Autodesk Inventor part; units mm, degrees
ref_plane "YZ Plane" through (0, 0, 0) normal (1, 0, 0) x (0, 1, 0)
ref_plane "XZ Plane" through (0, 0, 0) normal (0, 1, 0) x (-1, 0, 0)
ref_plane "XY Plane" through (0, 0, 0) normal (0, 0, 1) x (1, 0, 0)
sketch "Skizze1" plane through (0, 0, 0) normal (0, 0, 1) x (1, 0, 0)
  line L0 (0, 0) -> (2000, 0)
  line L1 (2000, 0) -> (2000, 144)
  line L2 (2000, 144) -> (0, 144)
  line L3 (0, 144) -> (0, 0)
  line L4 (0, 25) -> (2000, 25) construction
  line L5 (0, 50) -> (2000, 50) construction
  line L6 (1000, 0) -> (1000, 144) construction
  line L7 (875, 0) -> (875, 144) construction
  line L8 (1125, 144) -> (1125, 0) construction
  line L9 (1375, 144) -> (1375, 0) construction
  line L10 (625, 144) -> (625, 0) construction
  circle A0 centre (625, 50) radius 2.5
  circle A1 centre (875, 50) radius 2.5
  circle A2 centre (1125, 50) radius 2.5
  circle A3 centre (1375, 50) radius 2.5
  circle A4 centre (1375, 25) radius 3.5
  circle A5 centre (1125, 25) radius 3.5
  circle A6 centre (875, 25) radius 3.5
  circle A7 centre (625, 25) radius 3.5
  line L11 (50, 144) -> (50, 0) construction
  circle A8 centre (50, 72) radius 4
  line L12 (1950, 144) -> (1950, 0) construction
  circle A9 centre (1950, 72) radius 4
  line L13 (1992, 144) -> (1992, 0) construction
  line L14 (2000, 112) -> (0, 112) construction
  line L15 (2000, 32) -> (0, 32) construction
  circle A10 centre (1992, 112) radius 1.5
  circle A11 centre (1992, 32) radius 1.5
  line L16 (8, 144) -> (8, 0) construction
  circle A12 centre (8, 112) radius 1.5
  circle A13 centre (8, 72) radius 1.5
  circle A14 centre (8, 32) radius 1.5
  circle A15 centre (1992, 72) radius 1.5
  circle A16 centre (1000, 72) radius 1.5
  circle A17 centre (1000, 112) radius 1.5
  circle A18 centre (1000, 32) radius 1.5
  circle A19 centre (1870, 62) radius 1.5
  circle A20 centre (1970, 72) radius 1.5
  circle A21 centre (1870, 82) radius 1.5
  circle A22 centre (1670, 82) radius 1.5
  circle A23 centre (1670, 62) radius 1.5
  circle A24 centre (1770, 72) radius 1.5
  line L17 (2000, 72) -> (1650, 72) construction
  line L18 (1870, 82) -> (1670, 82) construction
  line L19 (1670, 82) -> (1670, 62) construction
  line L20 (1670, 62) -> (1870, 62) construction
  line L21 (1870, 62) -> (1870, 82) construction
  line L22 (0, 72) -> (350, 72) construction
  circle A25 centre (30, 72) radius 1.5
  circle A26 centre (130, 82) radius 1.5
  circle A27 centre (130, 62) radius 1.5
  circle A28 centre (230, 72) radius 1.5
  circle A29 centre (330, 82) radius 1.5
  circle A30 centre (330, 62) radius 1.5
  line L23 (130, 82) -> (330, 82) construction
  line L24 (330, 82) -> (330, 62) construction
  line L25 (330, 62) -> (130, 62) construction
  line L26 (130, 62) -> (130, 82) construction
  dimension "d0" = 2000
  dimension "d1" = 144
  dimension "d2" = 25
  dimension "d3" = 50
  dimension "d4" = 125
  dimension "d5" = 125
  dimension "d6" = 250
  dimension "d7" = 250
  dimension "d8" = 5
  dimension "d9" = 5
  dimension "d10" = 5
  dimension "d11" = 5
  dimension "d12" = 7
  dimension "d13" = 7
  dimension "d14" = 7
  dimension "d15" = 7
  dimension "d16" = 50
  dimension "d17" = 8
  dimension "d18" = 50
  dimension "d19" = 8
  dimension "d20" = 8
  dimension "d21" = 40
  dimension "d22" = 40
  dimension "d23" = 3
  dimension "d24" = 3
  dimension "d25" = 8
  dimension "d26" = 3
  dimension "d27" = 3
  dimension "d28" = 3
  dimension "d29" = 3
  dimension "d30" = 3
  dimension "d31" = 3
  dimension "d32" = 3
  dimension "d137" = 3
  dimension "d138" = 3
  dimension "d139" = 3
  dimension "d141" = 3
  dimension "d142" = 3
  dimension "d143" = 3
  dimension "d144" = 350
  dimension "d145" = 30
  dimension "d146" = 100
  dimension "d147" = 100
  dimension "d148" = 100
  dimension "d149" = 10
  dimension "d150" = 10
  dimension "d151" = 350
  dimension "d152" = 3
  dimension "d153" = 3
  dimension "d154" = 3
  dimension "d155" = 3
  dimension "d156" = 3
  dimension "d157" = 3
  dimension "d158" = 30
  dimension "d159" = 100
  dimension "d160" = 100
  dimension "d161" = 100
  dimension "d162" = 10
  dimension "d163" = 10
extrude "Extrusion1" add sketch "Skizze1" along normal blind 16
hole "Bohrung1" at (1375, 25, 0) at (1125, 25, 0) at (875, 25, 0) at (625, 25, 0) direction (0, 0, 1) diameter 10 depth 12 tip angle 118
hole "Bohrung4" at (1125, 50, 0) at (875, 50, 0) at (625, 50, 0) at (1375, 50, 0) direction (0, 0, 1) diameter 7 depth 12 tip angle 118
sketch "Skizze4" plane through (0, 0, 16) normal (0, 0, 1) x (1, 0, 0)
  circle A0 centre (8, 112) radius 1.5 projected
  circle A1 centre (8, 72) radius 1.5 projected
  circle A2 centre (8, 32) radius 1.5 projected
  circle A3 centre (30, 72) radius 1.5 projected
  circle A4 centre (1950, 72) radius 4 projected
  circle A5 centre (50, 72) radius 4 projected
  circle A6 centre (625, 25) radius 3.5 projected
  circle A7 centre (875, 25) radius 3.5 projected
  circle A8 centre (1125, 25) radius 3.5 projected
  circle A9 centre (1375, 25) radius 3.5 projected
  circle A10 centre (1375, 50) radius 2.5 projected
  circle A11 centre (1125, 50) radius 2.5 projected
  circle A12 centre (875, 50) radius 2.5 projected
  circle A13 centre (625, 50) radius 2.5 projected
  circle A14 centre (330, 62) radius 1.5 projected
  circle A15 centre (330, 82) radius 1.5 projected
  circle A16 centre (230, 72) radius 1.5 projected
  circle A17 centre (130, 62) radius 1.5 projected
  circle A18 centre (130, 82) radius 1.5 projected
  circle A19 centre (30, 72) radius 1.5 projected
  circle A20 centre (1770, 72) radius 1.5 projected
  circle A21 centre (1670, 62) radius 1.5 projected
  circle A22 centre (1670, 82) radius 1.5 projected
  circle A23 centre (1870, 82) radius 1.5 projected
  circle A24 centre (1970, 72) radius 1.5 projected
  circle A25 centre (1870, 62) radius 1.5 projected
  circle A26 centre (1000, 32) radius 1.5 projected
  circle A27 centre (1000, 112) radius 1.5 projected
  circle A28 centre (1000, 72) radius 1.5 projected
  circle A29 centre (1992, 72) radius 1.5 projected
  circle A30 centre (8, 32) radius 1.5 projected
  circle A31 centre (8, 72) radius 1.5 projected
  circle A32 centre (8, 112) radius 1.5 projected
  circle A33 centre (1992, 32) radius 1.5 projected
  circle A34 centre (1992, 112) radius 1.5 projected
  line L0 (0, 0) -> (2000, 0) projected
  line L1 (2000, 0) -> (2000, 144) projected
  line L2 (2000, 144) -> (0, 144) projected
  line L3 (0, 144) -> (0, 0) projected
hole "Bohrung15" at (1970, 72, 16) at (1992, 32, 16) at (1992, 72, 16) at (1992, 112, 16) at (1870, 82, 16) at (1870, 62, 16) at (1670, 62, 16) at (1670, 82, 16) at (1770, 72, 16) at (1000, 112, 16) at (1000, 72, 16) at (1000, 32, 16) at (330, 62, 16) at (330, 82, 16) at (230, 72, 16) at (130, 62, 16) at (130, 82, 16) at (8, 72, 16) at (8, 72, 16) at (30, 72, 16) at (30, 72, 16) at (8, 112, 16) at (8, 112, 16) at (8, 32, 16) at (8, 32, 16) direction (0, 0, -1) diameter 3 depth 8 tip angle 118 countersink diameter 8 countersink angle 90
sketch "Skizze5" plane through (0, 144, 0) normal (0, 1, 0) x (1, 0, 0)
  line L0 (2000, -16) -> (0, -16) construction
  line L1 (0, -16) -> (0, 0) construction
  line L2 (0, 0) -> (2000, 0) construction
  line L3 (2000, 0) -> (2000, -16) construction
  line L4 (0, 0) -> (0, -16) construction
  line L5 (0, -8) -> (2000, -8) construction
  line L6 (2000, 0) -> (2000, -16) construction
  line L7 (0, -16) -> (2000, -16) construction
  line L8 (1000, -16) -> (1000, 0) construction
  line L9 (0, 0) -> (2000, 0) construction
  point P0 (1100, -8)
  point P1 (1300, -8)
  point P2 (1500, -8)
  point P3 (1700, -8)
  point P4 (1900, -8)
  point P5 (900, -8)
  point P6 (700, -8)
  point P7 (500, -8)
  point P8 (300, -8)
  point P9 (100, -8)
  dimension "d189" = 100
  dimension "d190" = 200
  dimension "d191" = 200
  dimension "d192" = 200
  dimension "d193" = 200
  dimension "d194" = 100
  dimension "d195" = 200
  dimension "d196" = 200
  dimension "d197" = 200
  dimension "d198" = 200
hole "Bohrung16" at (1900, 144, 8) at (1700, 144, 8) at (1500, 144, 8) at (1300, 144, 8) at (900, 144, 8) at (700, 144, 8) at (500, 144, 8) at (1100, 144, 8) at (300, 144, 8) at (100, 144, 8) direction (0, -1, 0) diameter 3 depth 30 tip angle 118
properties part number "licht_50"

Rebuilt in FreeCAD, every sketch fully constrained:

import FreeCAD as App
import Part
import Sketcher
Q = App.Units.Quantity

doc = App.newDocument("Part")
body = doc.addObject("PartDesign::Body", "Body")

sketch1 = body.newObject("Sketcher::SketchObject", "Sketch")
sketch1.AttachmentSupport = (doc.getObject("XY_Plane"), [""])
sketch1.MapMode = "FlatFace"
sketch1.addGeometry(Part.LineSegment(App.Vector(0, 144, 0), App.Vector(0, 0, 0)), False)
sketch1.addGeometry(Part.LineSegment(App.Vector(0, 0, 0), App.Vector(2000, 0, 0)), False)
sketch1.addGeometry(Part.LineSegment(App.Vector(2000, 0, 0), App.Vector(2000, 144, 0)), False)
sketch1.addGeometry(Part.LineSegment(App.Vector(2000, 144, 0), App.Vector(0, 144, 0)), False)
sketch1.addGeometry(Part.Circle(App.Vector(8, 32, 0), App.Vector(0, 0, 1), 1.5), False)
sketch1.addGeometry(Part.Circle(App.Vector(625, 25, 0), App.Vector(0, 0, 1), 3.5), False)
sketch1.addGeometry(Part.Circle(App.Vector(875, 25, 0), App.Vector(0, 0, 1), 3.5), False)
sketch1.addGeometry(Part.Circle(App.Vector(130, 62, 0), App.Vector(0, 0, 1), 1.5), False)
sketch1.addGeometry(Part.Circle(App.Vector(330, 62, 0), App.Vector(0, 0, 1), 1.5), False)
sketch1.addGeometry(Part.Circle(App.Vector(625, 50, 0), App.Vector(0, 0, 1), 2.5), False)
sketch1.addGeometry(Part.Circle(App.Vector(875, 50, 0), App.Vector(0, 0, 1), 2.5), False)
sketch1.addGeometry(Part.Circle(App.Vector(1125, 25, 0), App.Vector(0, 0, 1), 3.5), False)
sketch1.addGeometry(Part.Circle(App.Vector(1000, 32, 0), App.Vector(0, 0, 1), 1.5), False)
sketch1.addGeometry(Part.Circle(App.Vector(1375, 25, 0), App.Vector(0, 0, 1), 3.5), False)
sketch1.addGeometry(Part.Circle(App.Vector(1992, 32, 0), App.Vector(0, 0, 1), 1.5), False)
sketch1.addGeometry(Part.Circle(App.Vector(1125, 50, 0), App.Vector(0, 0, 1), 2.5), False)
sketch1.addGeometry(Part.Circle(App.Vector(1375, 50, 0), App.Vector(0, 0, 1), 2.5), False)
sketch1.addGeometry(Part.Circle(App.Vector(1670, 62, 0), App.Vector(0, 0, 1), 1.5), False)
sketch1.addGeometry(Part.Circle(App.Vector(1870, 62, 0), App.Vector(0, 0, 1), 1.5), False)
sketch1.addGeometry(Part.Circle(App.Vector(8, 72, 0), App.Vector(0, 0, 1), 1.5), False)
sketch1.addGeometry(Part.Circle(App.Vector(30, 72, 0), App.Vector(0, 0, 1), 1.5), False)
sketch1.addGeometry(Part.Circle(App.Vector(50, 72, 0), App.Vector(0, 0, 1), 4), False)
sketch1.addGeometry(Part.Circle(App.Vector(230, 72, 0), App.Vector(0, 0, 1), 1.5), False)
sketch1.addGeometry(Part.Circle(App.Vector(130, 82, 0), App.Vector(0, 0, 1), 1.5), False)
sketch1.addGeometry(Part.Circle(App.Vector(330, 82, 0), App.Vector(0, 0, 1), 1.5), False)
sketch1.addGeometry(Part.Circle(App.Vector(8, 112, 0), App.Vector(0, 0, 1), 1.5), False)
sketch1.addGeometry(Part.Circle(App.Vector(1000, 72, 0), App.Vector(0, 0, 1), 1.5), False)
sketch1.addGeometry(Part.Circle(App.Vector(1670, 82, 0), App.Vector(0, 0, 1), 1.5), False)
sketch1.addGeometry(Part.Circle(App.Vector(1770, 72, 0), App.Vector(0, 0, 1), 1.5), False)
sketch1.addGeometry(Part.Circle(App.Vector(1950, 72, 0), App.Vector(0, 0, 1), 4), False)
sketch1.addGeometry(Part.Circle(App.Vector(1970, 72, 0), App.Vector(0, 0, 1), 1.5), False)
sketch1.addGeometry(Part.Circle(App.Vector(1992, 72, 0), App.Vector(0, 0, 1), 1.5), False)
sketch1.addGeometry(Part.Circle(App.Vector(1870, 82, 0), App.Vector(0, 0, 1), 1.5), False)
sketch1.addGeometry(Part.Circle(App.Vector(1000, 112, 0), App.Vector(0, 0, 1), 1.5), False)
sketch1.addGeometry(Part.Circle(App.Vector(1992, 112, 0), App.Vector(0, 0, 1), 1.5), False)
sketch1.addConstraint(Sketcher.Constraint("Coincident", 0, 2, 1, 1))
sketch1.addConstraint(Sketcher.Constraint("Coincident", 1, 2, 2, 1))
sketch1.addConstraint(Sketcher.Constraint("Coincident", 2, 2, 3, 1))
sketch1.addConstraint(Sketcher.Constraint("Coincident", 3, 2, 0, 1))
sketch1.addConstraint(Sketcher.Constraint("Vertical", 0))
sketch1.addConstraint(Sketcher.Constraint("Horizontal", 1))
sketch1.addConstraint(Sketcher.Constraint("Vertical", 2))
sketch1.addConstraint(Sketcher.Constraint("Horizontal", 3))
sketch1.addConstraint(Sketcher.Constraint("Coincident", 0, 2, -1, 1))
sketch1.addConstraint(Sketcher.Constraint("Equal", 5, 6))
sketch1.addConstraint(Sketcher.Constraint("Equal", 4, 7))
sketch1.addConstraint(Sketcher.Constraint("Equal", 7, 8))
sketch1.addConstraint(Sketcher.Constraint("Equal", 9, 10))
sketch1.addConstraint(Sketcher.Constraint("Equal", 6, 11))
sketch1.addConstraint(Sketcher.Constraint("Equal", 8, 12))
sketch1.addConstraint(Sketcher.Constraint("Equal", 11, 13))
sketch1.addConstraint(Sketcher.Constraint("Equal", 12, 14))
sketch1.addConstraint(Sketcher.Constraint("Equal", 10, 15))
sketch1.addConstraint(Sketcher.Constraint("Equal", 15, 16))
sketch1.addConstraint(Sketcher.Constraint("Equal", 14, 17))
sketch1.addConstraint(Sketcher.Constraint("Equal", 17, 18))
sketch1.addConstraint(Sketcher.Constraint("Equal", 18, 19))
sketch1.addConstraint(Sketcher.Constraint("Equal", 19, 20))
sketch1.addConstraint(Sketcher.Constraint("Equal", 20, 22))
sketch1.addConstraint(Sketcher.Constraint("Equal", 22, 23))
sketch1.addConstraint(Sketcher.Constraint("Equal", 23, 24))
sketch1.addConstraint(Sketcher.Constraint("Equal", 24, 25))
sketch1.addConstraint(Sketcher.Constraint("Equal", 25, 26))
sketch1.addConstraint(Sketcher.Constraint("Equal", 26, 27))
sketch1.addConstraint(Sketcher.Constraint("Equal", 27, 28))
sketch1.addConstraint(Sketcher.Constraint("Equal", 21, 29))
sketch1.addConstraint(Sketcher.Constraint("Equal", 28, 30))
sketch1.addConstraint(Sketcher.Constraint("Equal", 30, 31))
sketch1.addConstraint(Sketcher.Constraint("Equal", 31, 32))
sketch1.addConstraint(Sketcher.Constraint("Equal", 32, 33))
sketch1.addConstraint(Sketcher.Constraint("Equal", 33, 34))
sketch1.addConstraint(Sketcher.Constraint("Horizontal", 5, 3, 6, 3))
sketch1.addConstraint(Sketcher.Constraint("Horizontal", 7, 3, 8, 3))
sketch1.addConstraint(Sketcher.Constraint("Horizontal", 9, 3, 10, 3))
sketch1.addConstraint(Sketcher.Constraint("Horizontal", 6, 3, 11, 3))
sketch1.addConstraint(Sketcher.Constraint("Horizontal", 4, 3, 12, 3))
sketch1.addConstraint(Sketcher.Constraint("Horizontal", 11, 3, 13, 3))
sketch1.addConstraint(Sketcher.Constraint("Horizontal", 12, 3, 14, 3))
sketch1.addConstraint(Sketcher.Constraint("Horizontal", 10, 3, 15, 3))
sketch1.addConstraint(Sketcher.Constraint("Horizontal", 15, 3, 16, 3))
sketch1.addConstraint(Sketcher.Constraint("Horizontal", 8, 3, 17, 3))
sketch1.addConstraint(Sketcher.Constraint("Horizontal", 17, 3, 18, 3))
sketch1.addConstraint(Sketcher.Constraint("Horizontal", 19, 3, 20, 3))
sketch1.addConstraint(Sketcher.Constraint("Horizontal", 20, 3, 21, 3))
sketch1.addConstraint(Sketcher.Constraint("Horizontal", 21, 3, 22, 3))
sketch1.addConstraint(Sketcher.Constraint("Horizontal", 23, 3, 24, 3))
sketch1.addConstraint(Sketcher.Constraint("Horizontal", 22, 3, 26, 3))
sketch1.addConstraint(Sketcher.Constraint("Horizontal", 24, 3, 27, 3))
sketch1.addConstraint(Sketcher.Constraint("Horizontal", 26, 3, 28, 3))
sketch1.addConstraint(Sketcher.Constraint("Horizontal", 28, 3, 29, 3))
sketch1.addConstraint(Sketcher.Constraint("Horizontal", 29, 3, 30, 3))
sketch1.addConstraint(Sketcher.Constraint("Horizontal", 30, 3, 31, 3))
sketch1.addConstraint(Sketcher.Constraint("Horizontal", 27, 3, 32, 3))
sketch1.addConstraint(Sketcher.Constraint("Horizontal", 25, 3, 33, 3))
sketch1.addConstraint(Sketcher.Constraint("Horizontal", 33, 3, 34, 3))
sketch1.addConstraint(Sketcher.Constraint("Vertical", 5, 3, 9, 3))
sketch1.addConstraint(Sketcher.Constraint("Vertical", 6, 3, 10, 3))
sketch1.addConstraint(Sketcher.Constraint("Vertical", 11, 3, 15, 3))
sketch1.addConstraint(Sketcher.Constraint("Vertical", 13, 3, 16, 3))
sketch1.addConstraint(Sketcher.Constraint("Vertical", 4, 3, 19, 3))
sketch1.addConstraint(Sketcher.Constraint("Vertical", 7, 3, 23, 3))
sketch1.addConstraint(Sketcher.Constraint("Vertical", 8, 3, 24, 3))
sketch1.addConstraint(Sketcher.Constraint("Vertical", 19, 3, 25, 3))
sketch1.addConstraint(Sketcher.Constraint("Vertical", 12, 3, 26, 3))
sketch1.addConstraint(Sketcher.Constraint("Vertical", 17, 3, 27, 3))
sketch1.addConstraint(Sketcher.Constraint("Vertical", 14, 3, 31, 3))
sketch1.addConstraint(Sketcher.Constraint("Vertical", 18, 3, 32, 3))
sketch1.addConstraint(Sketcher.Constraint("Vertical", 26, 3, 33, 3))
sketch1.addConstraint(Sketcher.Constraint("Vertical", 31, 3, 34, 3))
sketch1.addConstraint(Sketcher.Constraint("Diameter", 4, Q("3 mm")))
sketch1.addConstraint(Sketcher.Constraint("Diameter", 5, Q("7 mm")))
sketch1.addConstraint(Sketcher.Constraint("Diameter", 9, Q("5 mm")))
sketch1.addConstraint(Sketcher.Constraint("Diameter", 21, Q("8 mm")))
sketch1.addConstraint(Sketcher.Constraint("DistanceX", 1, 1, 1, 2, Q("2000 mm")))
sketch1.addConstraint(Sketcher.Constraint("DistanceY", 0, 2, 0, 1, Q("144 mm")))
sketch1.addConstraint(Sketcher.Constraint("DistanceX", -1, 1, 4, 3, Q("8 mm")))
sketch1.addConstraint(Sketcher.Constraint("DistanceY", -1, 1, 5, 3, Q("25 mm")))
sketch1.addConstraint(Sketcher.Constraint("DistanceY", -1, 1, 9, 3, Q("50 mm")))
sketch1.addConstraint(Sketcher.Constraint("DistanceX", -1, 1, 20, 3, Q("30 mm")))
sketch1.addConstraint(Sketcher.Constraint("DistanceX", -1, 1, 21, 3, Q("50 mm")))
sketch1.addConstraint(Sketcher.Constraint("DistanceY", 5, 3, 4, 3, Q("7 mm")))
sketch1.addConstraint(Sketcher.Constraint("DistanceX", 5, 3, 6, 3, Q("250 mm")))
sketch1.addConstraint(Sketcher.Constraint("DistanceY", 4, 3, 7, 3, Q("30 mm")))
sketch1.addConstraint(Sketcher.Constraint("DistanceX", 6, 3, 11, 3, Q("250 mm")))
sketch1.addConstraint(Sketcher.Constraint("DistanceX", 6, 3, 12, 3, Q("125 mm")))
sketch1.addConstraint(Sketcher.Constraint("DistanceX", 11, 3, 13, 3, Q("250 mm")))
sketch1.addConstraint(Sketcher.Constraint("DistanceY", 4, 3, 19, 3, Q("40 mm")))
sketch1.addConstraint(Sketcher.Constraint("DistanceX", 20, 3, 7, 3, Q("100 mm")))
sketch1.addConstraint(Sketcher.Constraint("DistanceX", 7, 3, 22, 3, Q("100 mm")))
sketch1.addConstraint(Sketcher.Constraint("DistanceX", 22, 3, 8, 3, Q("100 mm")))
sketch1.addConstraint(Sketcher.Constraint("DistanceY", 21, 3, 23, 3, Q("10 mm")))
sketch1.addConstraint(Sketcher.Constraint("DistanceY", 19, 3, 25, 3, Q("40 mm")))
sketch1.addConstraint(Sketcher.Constraint("DistanceX", 17, 3, 28, 3, Q("100 mm")))
sketch1.addConstraint(Sketcher.Constraint("DistanceX", 28, 3, 18, 3, Q("100 mm")))
sketch1.addConstraint(Sketcher.Constraint("DistanceX", 18, 3, 30, 3, Q("100 mm")))
sketch1.addConstraint(Sketcher.Constraint("DistanceX", 14, 3, 1, 2, Q("8 mm")))
sketch1.addConstraint(Sketcher.Constraint("DistanceX", 30, 3, 1, 2, Q("30 mm")))
sketch1.addConstraint(Sketcher.Constraint("DistanceX", 29, 3, 1, 2, Q("50 mm")))
sketch1.addConstraint(Sketcher.Constraint("DistanceX", -1, 1, 5, 3, Q("625 mm")))
pad1 = body.newObject("PartDesign::Pad", "Pad")
pad1.Profile = sketch1
pad1.Length = 16

sketch2 = body.newObject("Sketcher::SketchObject", "Sketch001")
sketch2.AttachmentSupport = (doc.getObject("XY_Plane"), [""])
sketch2.MapMode = "FlatFace"
sketch2.addGeometry(Part.Circle(App.Vector(1375, 25, 0), App.Vector(0, 0, 1), 5), False)
sketch2.addGeometry(Part.Circle(App.Vector(1125, 25, 0), App.Vector(0, 0, 1), 5), False)
sketch2.addGeometry(Part.Circle(App.Vector(875, 25, 0), App.Vector(0, 0, 1), 5), False)
sketch2.addGeometry(Part.Circle(App.Vector(625, 25, 0), App.Vector(0, 0, 1), 5), False)
sketch2.addConstraint(Sketcher.Constraint("Equal", 0, 1))
sketch2.addConstraint(Sketcher.Constraint("Equal", 1, 2))
sketch2.addConstraint(Sketcher.Constraint("Equal", 2, 3))
sketch2.addConstraint(Sketcher.Constraint("Horizontal", 0, 3, 1, 3))
sketch2.addConstraint(Sketcher.Constraint("Horizontal", 1, 3, 2, 3))
sketch2.addConstraint(Sketcher.Constraint("Horizontal", 2, 3, 3, 3))
sketch2.addConstraint(Sketcher.Constraint("Diameter", 0, Q("10 mm")))
sketch2.addConstraint(Sketcher.Constraint("DistanceX", -1, 1, 0, 3, Q("1375 mm")))
sketch2.addConstraint(Sketcher.Constraint("DistanceY", -1, 1, 0, 3, Q("25 mm")))
sketch2.addConstraint(Sketcher.Constraint("DistanceX", -1, 1, 1, 3, Q("1125 mm")))
sketch2.addConstraint(Sketcher.Constraint("DistanceX", -1, 1, 2, 3, Q("875 mm")))
sketch2.addConstraint(Sketcher.Constraint("DistanceX", -1, 1, 3, 3, Q("625 mm")))
doc.recompute()
hole = body.newObject("PartDesign::Hole", "Hole")
hole.Profile = sketch2
hole.ThreadType = "None"
hole.Diameter = 10
hole.DepthType = "Dimension"
hole.Depth = 12
hole.DrillPoint = "Angled"
hole.DrillPointAngle = 118
hole.Reversed = True

sketch3 = body.newObject("Sketcher::SketchObject", "Sketch002")
sketch3.AttachmentSupport = (doc.getObject("XY_Plane"), [""])
sketch3.MapMode = "FlatFace"
sketch3.addGeometry(Part.Circle(App.Vector(1125, 50, 0), App.Vector(0, 0, 1), 3.5), False)
sketch3.addGeometry(Part.Circle(App.Vector(875, 50, 0), App.Vector(0, 0, 1), 3.5), False)
sketch3.addGeometry(Part.Circle(App.Vector(625, 50, 0), App.Vector(0, 0, 1), 3.5), False)
sketch3.addGeometry(Part.Circle(App.Vector(1375, 50, 0), App.Vector(0, 0, 1), 3.5), False)
sketch3.addConstraint(Sketcher.Constraint("Equal", 0, 1))
sketch3.addConstraint(Sketcher.Constraint("Equal", 1, 2))
sketch3.addConstraint(Sketcher.Constraint("Equal", 2, 3))
sketch3.addConstraint(Sketcher.Constraint("Horizontal", 0, 3, 1, 3))
sketch3.addConstraint(Sketcher.Constraint("Horizontal", 1, 3, 2, 3))
sketch3.addConstraint(Sketcher.Constraint("Horizontal", 2, 3, 3, 3))
sketch3.addConstraint(Sketcher.Constraint("Diameter", 0, Q("7 mm")))
sketch3.addConstraint(Sketcher.Constraint("DistanceX", -1, 1, 0, 3, Q("1125 mm")))
sketch3.addConstraint(Sketcher.Constraint("DistanceY", -1, 1, 0, 3, Q("50 mm")))
sketch3.addConstraint(Sketcher.Constraint("DistanceX", -1, 1, 1, 3, Q("875 mm")))
sketch3.addConstraint(Sketcher.Constraint("DistanceX", -1, 1, 2, 3, Q("625 mm")))
sketch3.addConstraint(Sketcher.Constraint("DistanceX", -1, 1, 3, 3, Q("1375 mm")))
doc.recompute()
hole2 = body.newObject("PartDesign::Hole", "Hole001")
hole2.Profile = sketch3
hole2.ThreadType = "None"
hole2.Diameter = 7
hole2.DepthType = "Dimension"
hole2.Depth = 12
hole2.DrillPoint = "Angled"
hole2.DrillPointAngle = 118
hole2.Reversed = True

sketch4 = body.newObject("Sketcher::SketchObject", "Sketch003")
sketch4.AttachmentSupport = (doc.getObject("XY_Plane"), [""])
sketch4.MapMode = "FlatFace"
sketch4.AttachmentOffset = App.Placement(App.Vector(0, 0, 16), App.Rotation())
sketch4.addGeometry(Part.Circle(App.Vector(1970, 72, 0), App.Vector(0, 0, 1), 1.5), False)
sketch4.addGeometry(Part.Circle(App.Vector(1992, 32, 0), App.Vector(0, 0, 1), 1.5), False)
sketch4.addGeometry(Part.Circle(App.Vector(1992, 72, 0), App.Vector(0, 0, 1), 1.5), False)
sketch4.addGeometry(Part.Circle(App.Vector(1992, 112, 0), App.Vector(0, 0, 1), 1.5), False)
sketch4.addGeometry(Part.Circle(App.Vector(1870, 82, 0), App.Vector(0, 0, 1), 1.5), False)
sketch4.addGeometry(Part.Circle(App.Vector(1870, 62, 0), App.Vector(0, 0, 1), 1.5), False)
sketch4.addGeometry(Part.Circle(App.Vector(1670, 62, 0), App.Vector(0, 0, 1), 1.5), False)
sketch4.addGeometry(Part.Circle(App.Vector(1670, 82, 0), App.Vector(0, 0, 1), 1.5), False)
sketch4.addGeometry(Part.Circle(App.Vector(1770, 72, 0), App.Vector(0, 0, 1), 1.5), False)
sketch4.addGeometry(Part.Circle(App.Vector(1000, 112, 0), App.Vector(0, 0, 1), 1.5), False)
sketch4.addGeometry(Part.Circle(App.Vector(1000, 72, 0), App.Vector(0, 0, 1), 1.5), False)
sketch4.addGeometry(Part.Circle(App.Vector(1000, 32, 0), App.Vector(0, 0, 1), 1.5), False)
sketch4.addGeometry(Part.Circle(App.Vector(330, 62, 0), App.Vector(0, 0, 1), 1.5), False)
sketch4.addGeometry(Part.Circle(App.Vector(330, 82, 0), App.Vector(0, 0, 1), 1.5), False)
sketch4.addGeometry(Part.Circle(App.Vector(230, 72, 0), App.Vector(0, 0, 1), 1.5), False)
sketch4.addGeometry(Part.Circle(App.Vector(130, 62, 0), App.Vector(0, 0, 1), 1.5), False)
sketch4.addGeometry(Part.Circle(App.Vector(130, 82, 0), App.Vector(0, 0, 1), 1.5), False)
sketch4.addGeometry(Part.Circle(App.Vector(8, 72, 0), App.Vector(0, 0, 1), 1.5), False)
sketch4.addGeometry(Part.Circle(App.Vector(8, 72, 0), App.Vector(0, 0, 1), 1.5), False)
sketch4.addGeometry(Part.Circle(App.Vector(30, 72, 0), App.Vector(0, 0, 1), 1.5), False)
sketch4.addGeometry(Part.Circle(App.Vector(30, 72, 0), App.Vector(0, 0, 1), 1.5), False)
sketch4.addGeometry(Part.Circle(App.Vector(8, 112, 0), App.Vector(0, 0, 1), 1.5), False)
sketch4.addGeometry(Part.Circle(App.Vector(8, 112, 0), App.Vector(0, 0, 1), 1.5), False)
sketch4.addGeometry(Part.Circle(App.Vector(8, 32, 0), App.Vector(0, 0, 1), 1.5), False)
sketch4.addGeometry(Part.Circle(App.Vector(8, 32, 0), App.Vector(0, 0, 1), 1.5), False)
sketch4.addConstraint(Sketcher.Constraint("Coincident", 18, 3, 17, 3))
sketch4.addConstraint(Sketcher.Constraint("Coincident", 20, 3, 19, 3))
sketch4.addConstraint(Sketcher.Constraint("Coincident", 22, 3, 21, 3))
sketch4.addConstraint(Sketcher.Constraint("Coincident", 24, 3, 23, 3))
sketch4.addConstraint(Sketcher.Constraint("Equal", 0, 1))
sketch4.addConstraint(Sketcher.Constraint("Equal", 1, 2))
sketch4.addConstraint(Sketcher.Constraint("Equal", 2, 3))
sketch4.addConstraint(Sketcher.Constraint("Equal", 3, 4))
sketch4.addConstraint(Sketcher.Constraint("Equal", 4, 5))
sketch4.addConstraint(Sketcher.Constraint("Equal", 5, 6))
sketch4.addConstraint(Sketcher.Constraint("Equal", 6, 7))
sketch4.addConstraint(Sketcher.Constraint("Equal", 7, 8))
sketch4.addConstraint(Sketcher.Constraint("Equal", 8, 9))
sketch4.addConstraint(Sketcher.Constraint("Equal", 9, 10))
sketch4.addConstraint(Sketcher.Constraint("Equal", 10, 11))
sketch4.addConstraint(Sketcher.Constraint("Equal", 11, 12))
sketch4.addConstraint(Sketcher.Constraint("Equal", 12, 13))
sketch4.addConstraint(Sketcher.Constraint("Equal", 13, 14))
sketch4.addConstraint(Sketcher.Constraint("Equal", 14, 15))
sketch4.addConstraint(Sketcher.Constraint("Equal", 15, 16))
sketch4.addConstraint(Sketcher.Constraint("Equal", 16, 17))
sketch4.addConstraint(Sketcher.Constraint("Equal", 17, 18))
sketch4.addConstraint(Sketcher.Constraint("Equal", 18, 19))
sketch4.addConstraint(Sketcher.Constraint("Equal", 19, 20))
sketch4.addConstraint(Sketcher.Constraint("Equal", 20, 21))
sketch4.addConstraint(Sketcher.Constraint("Equal", 21, 22))
sketch4.addConstraint(Sketcher.Constraint("Equal", 22, 23))
sketch4.addConstraint(Sketcher.Constraint("Equal", 23, 24))
sketch4.addConstraint(Sketcher.Constraint("Horizontal", 0, 3, 2, 3))
sketch4.addConstraint(Sketcher.Constraint("Horizontal", 5, 3, 6, 3))
sketch4.addConstraint(Sketcher.Constraint("Horizontal", 4, 3, 7, 3))
sketch4.addConstraint(Sketcher.Constraint("Horizontal", 2, 3, 8, 3))
sketch4.addConstraint(Sketcher.Constraint("Horizontal", 3, 3, 9, 3))
sketch4.addConstraint(Sketcher.Constraint("Horizontal", 8, 3, 10, 3))
sketch4.addConstraint(Sketcher.Constraint("Horizontal", 1, 3, 11, 3))
sketch4.addConstraint(Sketcher.Constraint("Horizontal", 6, 3, 12, 3))
sketch4.addConstraint(Sketcher.Constraint("Horizontal", 7, 3, 13, 3))
sketch4.addConstraint(Sketcher.Constraint("Horizontal", 10, 3, 14, 3))
sketch4.addConstraint(Sketcher.Constraint("Horizontal", 12, 3, 15, 3))
sketch4.addConstraint(Sketcher.Constraint("Horizontal", 13, 3, 16, 3))
sketch4.addConstraint(Sketcher.Constraint("Horizontal", 14, 3, 17, 3))
sketch4.addConstraint(Sketcher.Constraint("Horizontal", 18, 3, 19, 3))
sketch4.addConstraint(Sketcher.Constraint("Horizontal", 9, 3, 21, 3))
sketch4.addConstraint(Sketcher.Constraint("Horizontal", 11, 3, 23, 3))
sketch4.addConstraint(Sketcher.Constraint("Vertical", 1, 3, 2, 3))
sketch4.addConstraint(Sketcher.Constraint("Vertical", 2, 3, 3, 3))
sketch4.addConstraint(Sketcher.Constraint("Vertical", 4, 3, 5, 3))
sketch4.addConstraint(Sketcher.Constraint("Vertical", 6, 3, 7, 3))
sketch4.addConstraint(Sketcher.Constraint("Vertical", 9, 3, 10, 3))
sketch4.addConstraint(Sketcher.Constraint("Vertical", 10, 3, 11, 3))
sketch4.addConstraint(Sketcher.Constraint("Vertical", 12, 3, 13, 3))
sketch4.addConstraint(Sketcher.Constraint("Vertical", 15, 3, 16, 3))
sketch4.addConstraint(Sketcher.Constraint("Vertical", 18, 3, 21, 3))
sketch4.addConstraint(Sketcher.Constraint("Vertical", 22, 3, 23, 3))
sketch4.addConstraint(Sketcher.Constraint("Diameter", 0, Q("3 mm")))
sketch4.addConstraint(Sketcher.Constraint("DistanceX", -1, 1, 0, 3, Q("1970 mm")))
sketch4.addConstraint(Sketcher.Constraint("DistanceY", -1, 1, 0, 3, Q("72 mm")))
sketch4.addConstraint(Sketcher.Constraint("DistanceX", -1, 1, 1, 3, Q("1992 mm")))
sketch4.addConstraint(Sketcher.Constraint("DistanceY", -1, 1, 1, 3, Q("32 mm")))
sketch4.addConstraint(Sketcher.Constraint("DistanceY", -1, 1, 3, 3, Q("112 mm")))
sketch4.addConstraint(Sketcher.Constraint("DistanceX", -1, 1, 4, 3, Q("1870 mm")))
sketch4.addConstraint(Sketcher.Constraint("DistanceY", -1, 1, 4, 3, Q("82 mm")))
sketch4.addConstraint(Sketcher.Constraint("DistanceY", -1, 1, 5, 3, Q("62 mm")))
sketch4.addConstraint(Sketcher.Constraint("DistanceX", -1, 1, 6, 3, Q("1670 mm")))
sketch4.addConstraint(Sketcher.Constraint("DistanceX", -1, 1, 8, 3, Q("1770 mm")))
sketch4.addConstraint(Sketcher.Constraint("DistanceX", -1, 1, 9, 3, Q("1000 mm")))
sketch4.addConstraint(Sketcher.Constraint("DistanceX", -1, 1, 12, 3, Q("330 mm")))
sketch4.addConstraint(Sketcher.Constraint("DistanceX", -1, 1, 14, 3, Q("230 mm")))
sketch4.addConstraint(Sketcher.Constraint("DistanceX", -1, 1, 15, 3, Q("130 mm")))
sketch4.addConstraint(Sketcher.Constraint("DistanceX", -1, 1, 17, 3, Q("8 mm")))
sketch4.addConstraint(Sketcher.Constraint("DistanceX", -1, 1, 19, 3, Q("30 mm")))
doc.recompute()
hole3 = body.newObject("PartDesign::Hole", "Hole002")
hole3.Profile = sketch4
hole3.ThreadType = "None"
hole3.Diameter = 3
hole3.DepthType = "Dimension"
hole3.Depth = 8
hole3.DrillPoint = "Angled"
hole3.DrillPointAngle = 118
hole3.HoleCutType = "Countersink"
hole3.HoleCutDiameter = 8
hole3.HoleCutCountersinkAngle = 90

sketch5 = body.newObject("Sketcher::SketchObject", "Sketch004")
sketch5.AttachmentSupport = (doc.getObject("XZ_Plane"), [""])
sketch5.MapMode = "FlatFace"
sketch5.AttachmentOffset = App.Placement(App.Vector(0, 0, -144), App.Rotation())
sketch5.addGeometry(Part.Circle(App.Vector(1900, 8, 0), App.Vector(0, 0, 1), 1.5), False)
sketch5.addGeometry(Part.Circle(App.Vector(1700, 8, 0), App.Vector(0, 0, 1), 1.5), False)
sketch5.addGeometry(Part.Circle(App.Vector(1500, 8, 0), App.Vector(0, 0, 1), 1.5), False)
sketch5.addGeometry(Part.Circle(App.Vector(1300, 8, 0), App.Vector(0, 0, 1), 1.5), False)
sketch5.addGeometry(Part.Circle(App.Vector(900, 8, 0), App.Vector(0, 0, 1), 1.5), False)
sketch5.addGeometry(Part.Circle(App.Vector(700, 8, 0), App.Vector(0, 0, 1), 1.5), False)
sketch5.addGeometry(Part.Circle(App.Vector(500, 8, 0), App.Vector(0, 0, 1), 1.5), False)
sketch5.addGeometry(Part.Circle(App.Vector(1100, 8, 0), App.Vector(0, 0, 1), 1.5), False)
sketch5.addGeometry(Part.Circle(App.Vector(300, 8, 0), App.Vector(0, 0, 1), 1.5), False)
sketch5.addGeometry(Part.Circle(App.Vector(100, 8, 0), App.Vector(0, 0, 1), 1.5), False)
sketch5.addConstraint(Sketcher.Constraint("Equal", 0, 1))
sketch5.addConstraint(Sketcher.Constraint("Equal", 1, 2))
sketch5.addConstraint(Sketcher.Constraint("Equal", 2, 3))
sketch5.addConstraint(Sketcher.Constraint("Equal", 3, 4))
sketch5.addConstraint(Sketcher.Constraint("Equal", 4, 5))
sketch5.addConstraint(Sketcher.Constraint("Equal", 5, 6))
sketch5.addConstraint(Sketcher.Constraint("Equal", 6, 7))
sketch5.addConstraint(Sketcher.Constraint("Equal", 7, 8))
sketch5.addConstraint(Sketcher.Constraint("Equal", 8, 9))
sketch5.addConstraint(Sketcher.Constraint("Horizontal", 0, 3, 1, 3))
sketch5.addConstraint(Sketcher.Constraint("Horizontal", 1, 3, 2, 3))
sketch5.addConstraint(Sketcher.Constraint("Horizontal", 2, 3, 3, 3))
sketch5.addConstraint(Sketcher.Constraint("Horizontal", 3, 3, 4, 3))
sketch5.addConstraint(Sketcher.Constraint("Horizontal", 4, 3, 5, 3))
sketch5.addConstraint(Sketcher.Constraint("Horizontal", 5, 3, 6, 3))
sketch5.addConstraint(Sketcher.Constraint("Horizontal", 6, 3, 7, 3))
sketch5.addConstraint(Sketcher.Constraint("Horizontal", 7, 3, 8, 3))
sketch5.addConstraint(Sketcher.Constraint("Horizontal", 8, 3, 9, 3))
sketch5.addConstraint(Sketcher.Constraint("Diameter", 0, Q("3 mm")))
sketch5.addConstraint(Sketcher.Constraint("DistanceX", -1, 1, 0, 3, Q("1900 mm")))
sketch5.addConstraint(Sketcher.Constraint("DistanceY", -1, 1, 0, 3, Q("8 mm")))
sketch5.addConstraint(Sketcher.Constraint("DistanceX", -1, 1, 1, 3, Q("1700 mm")))
sketch5.addConstraint(Sketcher.Constraint("DistanceX", -1, 1, 2, 3, Q("1500 mm")))
sketch5.addConstraint(Sketcher.Constraint("DistanceX", -1, 1, 3, 3, Q("1300 mm")))
sketch5.addConstraint(Sketcher.Constraint("DistanceX", -1, 1, 4, 3, Q("900 mm")))
sketch5.addConstraint(Sketcher.Constraint("DistanceX", -1, 1, 5, 3, Q("700 mm")))
sketch5.addConstraint(Sketcher.Constraint("DistanceX", -1, 1, 6, 3, Q("500 mm")))
sketch5.addConstraint(Sketcher.Constraint("DistanceX", -1, 1, 7, 3, Q("1100 mm")))
sketch5.addConstraint(Sketcher.Constraint("DistanceX", -1, 1, 8, 3, Q("300 mm")))
sketch5.addConstraint(Sketcher.Constraint("DistanceX", -1, 1, 9, 3, Q("100 mm")))
doc.recompute()
hole4 = body.newObject("PartDesign::Hole", "Hole003")
hole4.Profile = sketch5
hole4.ThreadType = "None"
hole4.Diameter = 3
hole4.DepthType = "Dimension"
hole4.Depth = 30
hole4.DrillPoint = "Angled"
hole4.DrillPointAngle = 118
hole4.Reversed = True

doc.recompute()
